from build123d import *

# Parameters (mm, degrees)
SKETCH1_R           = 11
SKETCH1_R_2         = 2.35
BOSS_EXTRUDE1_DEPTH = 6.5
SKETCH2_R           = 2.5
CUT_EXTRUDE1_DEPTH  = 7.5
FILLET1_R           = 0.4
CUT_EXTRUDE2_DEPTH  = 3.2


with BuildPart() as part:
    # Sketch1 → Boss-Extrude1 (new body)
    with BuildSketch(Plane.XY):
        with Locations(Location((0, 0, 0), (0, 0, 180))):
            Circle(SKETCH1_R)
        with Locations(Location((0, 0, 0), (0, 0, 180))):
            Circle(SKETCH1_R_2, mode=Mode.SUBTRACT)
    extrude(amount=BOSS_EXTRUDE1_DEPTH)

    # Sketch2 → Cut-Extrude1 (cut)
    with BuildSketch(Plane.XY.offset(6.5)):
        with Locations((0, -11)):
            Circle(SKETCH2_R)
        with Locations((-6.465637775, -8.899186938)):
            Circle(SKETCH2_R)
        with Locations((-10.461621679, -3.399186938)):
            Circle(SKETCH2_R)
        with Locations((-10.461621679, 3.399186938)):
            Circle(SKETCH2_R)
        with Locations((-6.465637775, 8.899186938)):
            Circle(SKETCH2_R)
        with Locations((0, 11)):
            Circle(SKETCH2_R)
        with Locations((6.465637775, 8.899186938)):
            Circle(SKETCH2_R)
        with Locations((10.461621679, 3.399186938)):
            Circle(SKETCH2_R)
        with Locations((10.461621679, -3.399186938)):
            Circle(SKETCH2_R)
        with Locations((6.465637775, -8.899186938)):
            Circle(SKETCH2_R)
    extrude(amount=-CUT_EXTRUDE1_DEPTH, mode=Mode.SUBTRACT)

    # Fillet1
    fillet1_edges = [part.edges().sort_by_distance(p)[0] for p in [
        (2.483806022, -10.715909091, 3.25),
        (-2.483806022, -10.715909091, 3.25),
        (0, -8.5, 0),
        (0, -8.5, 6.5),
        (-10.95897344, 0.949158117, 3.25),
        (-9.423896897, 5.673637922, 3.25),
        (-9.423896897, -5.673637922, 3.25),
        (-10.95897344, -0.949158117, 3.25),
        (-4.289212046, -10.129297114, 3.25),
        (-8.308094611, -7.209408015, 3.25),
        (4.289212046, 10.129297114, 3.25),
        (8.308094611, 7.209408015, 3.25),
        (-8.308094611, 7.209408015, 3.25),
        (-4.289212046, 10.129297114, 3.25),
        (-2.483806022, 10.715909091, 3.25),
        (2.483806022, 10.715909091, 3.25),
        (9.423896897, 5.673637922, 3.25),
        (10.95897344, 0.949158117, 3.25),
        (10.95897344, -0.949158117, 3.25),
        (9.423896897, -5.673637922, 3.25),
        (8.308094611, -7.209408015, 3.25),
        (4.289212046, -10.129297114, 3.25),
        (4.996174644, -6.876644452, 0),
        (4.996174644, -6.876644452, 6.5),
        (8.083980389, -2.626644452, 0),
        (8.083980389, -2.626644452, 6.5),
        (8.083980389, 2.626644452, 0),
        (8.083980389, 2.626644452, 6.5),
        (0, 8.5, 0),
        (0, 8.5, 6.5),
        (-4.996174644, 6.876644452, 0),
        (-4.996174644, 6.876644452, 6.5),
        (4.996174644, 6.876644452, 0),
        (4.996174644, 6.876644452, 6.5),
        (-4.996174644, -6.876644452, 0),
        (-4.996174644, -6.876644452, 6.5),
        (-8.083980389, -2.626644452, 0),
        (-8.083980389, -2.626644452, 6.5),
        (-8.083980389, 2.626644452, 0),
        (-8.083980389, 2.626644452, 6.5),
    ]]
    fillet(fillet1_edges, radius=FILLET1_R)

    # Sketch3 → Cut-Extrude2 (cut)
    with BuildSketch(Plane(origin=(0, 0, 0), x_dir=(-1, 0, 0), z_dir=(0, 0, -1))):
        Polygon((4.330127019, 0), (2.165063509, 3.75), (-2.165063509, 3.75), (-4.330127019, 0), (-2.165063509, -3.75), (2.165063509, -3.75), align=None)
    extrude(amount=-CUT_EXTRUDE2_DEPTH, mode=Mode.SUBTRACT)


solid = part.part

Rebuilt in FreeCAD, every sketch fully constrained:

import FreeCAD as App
import Part
import Sketcher
from FreeCAD import Vector
Q = App.Units.Quantity


def edges_at(feature, points):
    """Names of the edges that pass closest to the given points."""
    edges = feature.Shape.Edges
    near = lambda p: min(range(len(edges)), key=lambda i: edges[i].distToShape(Part.Vertex(*p))[0])
    return sorted({f"Edge{near(p) + 1}" for p in points})


def add_polygon(sketch, points):
    """Adds a closed chain of lines whose ends are joined by coincident constraints."""
    first, n = sketch.GeometryCount, len(points)
    for a, b in zip(points, points[1:] + points[:1]):
        sketch.addGeometry(Part.LineSegment(App.Vector(*a, 0), App.Vector(*b, 0)), False)
    for i in range(n):
        sketch.addConstraint(Sketcher.Constraint("Coincident", first + i, 2, first + (i + 1) % n, 1))

doc = App.newDocument("Part")
params = doc.addObject("Spreadsheet::Sheet", "Params")
for row, (alias, value) in enumerate([
    ("sketch1_diameter", "22 mm"),
    ("sketch1_diameter2", "4.7 mm"),
    ("pad1_length", "6.5 mm"),
    ("sketch2_diameter", "5 mm"),
    ("pocket1_length", "7.5 mm"),
    ("fillet_radius", "0.4 mm"),
    ("pocket2_length", "3.2 mm"),
], start=1):
    params.set(f"A{row}", alias)
    params.set(f"B{row}", "=" + value)
    params.setAlias(f"B{row}", alias)

body = doc.addObject("PartDesign::Body", "Body")

sketch1 = body.newObject("Sketcher::SketchObject", "Sketch")
sketch1.AttachmentSupport = (doc.getObject("XY_Plane"), [""])
sketch1.MapMode = "FlatFace"
sketch1.addGeometry(Part.Circle(Vector(0, 0, 0), Vector(0, 0, 1), 11), False)
sketch1.addGeometry(Part.Circle(Vector(0, 0, 0), Vector(0, 0, 1), 2.35), False)
sketch1.addConstraint(Sketcher.Constraint("Coincident", 0, 3, -1, 1))
sketch1.addConstraint(Sketcher.Constraint("Coincident", 1, 3, -1, 1))
sketch1.addConstraint(Sketcher.Constraint("Diameter", 0, 22.0))
sketch1.addConstraint(Sketcher.Constraint("Diameter", 1, 4.7))
sketch1.setExpression("Constraints[2]", "Params.sketch1_diameter")
sketch1.setExpression("Constraints[3]", "Params.sketch1_diameter2")
pad1 = body.newObject("PartDesign::Pad", "Pad")
pad1.Profile = sketch1
pad1.setExpression("Length", "Params.pad1_length")

sketch2 = body.newObject("Sketcher::SketchObject", "Sketch001")
sketch2.AttachmentSupport = (doc.getObject("XY_Plane"), [""])
sketch2.MapMode = "FlatFace"
sketch2.AttachmentOffset = App.Placement(Vector(0, 0, 6.5), App.Rotation())
sketch2.addGeometry(Part.Circle(Vector(0, -11, 0), Vector(0, 0, 1), 2.5), False)
sketch2.addGeometry(Part.Circle(Vector(-6.465638, -8.899187, 0), Vector(0, 0, 1), 2.5), False)
sketch2.addGeometry(Part.Circle(Vector(-10.461622, -3.399187, 0), Vector(0, 0, 1), 2.5), False)
sketch2.addGeometry(Part.Circle(Vector(-10.461622, 3.399187, 0), Vector(0, 0, 1), 2.5), False)
sketch2.addGeometry(Part.Circle(Vector(-6.465638, 8.899187, 0), Vector(0, 0, 1), 2.5), False)
sketch2.addGeometry(Part.Circle(Vector(0, 11, 0), Vector(0, 0, 1), 2.5), False)
sketch2.addGeometry(Part.Circle(Vector(6.465638, 8.899187, 0), Vector(0, 0, 1), 2.5), False)
sketch2.addGeometry(Part.Circle(Vector(10.461622, 3.399187, 0), Vector(0, 0, 1), 2.5), False)
sketch2.addGeometry(Part.Circle(Vector(10.461622, -3.399187, 0), Vector(0, 0, 1), 2.5), False)
sketch2.addGeometry(Part.Circle(Vector(6.465638, -8.899187, 0), Vector(0, 0, 1), 2.5), False)
sketch2.addConstraint(Sketcher.Constraint("Equal", 0, 1))
sketch2.addConstraint(Sketcher.Constraint("Equal", 1, 2))
sketch2.addConstraint(Sketcher.Constraint("Equal", 2, 3))
sketch2.addConstraint(Sketcher.Constraint("Equal", 3, 4))
sketch2.addConstraint(Sketcher.Constraint("Equal", 4, 5))
sketch2.addConstraint(Sketcher.Constraint("Equal", 5, 6))
sketch2.addConstraint(Sketcher.Constraint("Equal", 6, 7))
sketch2.addConstraint(Sketcher.Constraint("Equal", 7, 8))
sketch2.addConstraint(Sketcher.Constraint("Equal", 8, 9))
sketch2.addConstraint(Sketcher.Constraint("Symmetric", 0, 3, 5, 3, -1, 1))
sketch2.addConstraint(Sketcher.Constraint("Symmetric", 1, 3, 6, 3, -1, 1))
sketch2.addConstraint(Sketcher.Constraint("Symmetric", 2, 3, 7, 3, -1, 1))
sketch2.addConstraint(Sketcher.Constraint("Symmetric", 3, 3, 8, 3, -1, 1))
sketch2.addConstraint(Sketcher.Constraint("Symmetric", 4, 3, 9, 3, -1, 1))
sketch2.addConstraint(Sketcher.Constraint("Symmetric", 4, 3, 6, 3, -2))
sketch2.addConstraint(Sketcher.Constraint("Symmetric", 3, 3, 7, 3, -2))
sketch2.addConstraint(Sketcher.Constraint("PointOnObject", 0, 3, -2))
sketch2.addConstraint(Sketcher.Constraint("Diameter", 0, 5.0))
sketch2.addConstraint(Sketcher.Constraint("DistanceY", 0, 3, -1, 1, 11.0))
sketch2.addConstraint(Sketcher.Constraint("DistanceY", 1, 3, 2, 3, 5.5))
sketch2.addConstraint(Sketcher.Constraint("DistanceX", 2, 3, -1, 1, 10.461622))
sketch2.addConstraint(Sketcher.Constraint("DistanceX", 3, 3, 6, 3, 16.927259))
sketch2.addConstraint(Sketcher.Constraint("DistanceY", 1, 3, -1, 1, 8.899187))
sketch2.setExpression("Constraints[17]", "Params.sketch2_diameter")
pocket1 = body.newObject("PartDesign::Pocket", "Pocket")
pocket1.Profile = sketch2
pocket1.setExpression("Length", "Params.pocket1_length")
doc.recompute()

fillet = body.newObject("PartDesign::Fillet", "Fillet")
fillet.Base = (pocket1, edges_at(pocket1, [
    (2.484, -10.716, 3.25),
    (-2.484, -10.716, 3.25),
    (0, -8.5, 0),
    (0, -8.5, 6.5),
    (-10.959, 0.949, 3.25),
    (-9.424, 5.674, 3.25),
    (-9.424, -5.674, 3.25),
    (-10.959, -0.949, 3.25),
    (-4.289, -10.129, 3.25),
    (-8.308, -7.209, 3.25),
    (4.289, 10.129, 3.25),
    (8.308, 7.209, 3.25),
    (-8.308, 7.209, 3.25),
    (-4.289, 10.129, 3.25),
    (-2.484, 10.716, 3.25),
    (2.484, 10.716, 3.25),
    (9.424, 5.674, 3.25),
    (10.959, 0.949, 3.25),
    (10.959, -0.949, 3.25),
    (9.424, -5.674, 3.25),
    (8.308, -7.209, 3.25),
    (4.289, -10.129, 3.25),
    (4.996, -6.877, 0),
    (4.996, -6.877, 6.5),
    (8.084, -2.627, 0),
    (8.084, -2.627, 6.5),
    (8.084, 2.627, 0),
    (8.084, 2.627, 6.5),
    (0, 8.5, 0),
    (0, 8.5, 6.5),
    (-4.996, 6.877, 0),
    (-4.996, 6.877, 6.5),
    (4.996, 6.877, 0),
    (4.996, 6.877, 6.5),
    (-4.996, -6.877, 0),
    (-4.996, -6.877, 6.5),
    (-8.084, -2.627, 0),
    (-8.084, -2.627, 6.5),
    (-8.084, 2.627, 0),
    (-8.084, 2.627, 6.5),
]))
fillet.setExpression("Radius", "Params.fillet_radius")

sketch3 = body.newObject("Sketcher::SketchObject", "Sketch002")
sketch3.AttachmentSupport = (doc.getObject("XY_Plane"), [""])
sketch3.MapMode = "FlatFace"
add_polygon(sketch3, [(-4.330127, 0), (-2.165064, 3.75), (2.165064, 3.75), (4.330127, 0), (2.165064, -3.75), (-2.165064, -3.75)])
sketch3.addConstraint(Sketcher.Constraint("Horizontal", 1))
sketch3.addConstraint(Sketcher.Constraint("Horizontal", 4))
sketch3.addConstraint(Sketcher.Constraint("Symmetric", 0, 2, 3, 2, -1, 1))
sketch3.addConstraint(Sketcher.Constraint("Symmetric", 2, 2, 5, 2, -1, 1))
sketch3.addConstraint(Sketcher.Constraint("PointOnObject", 2, 2, -1))
sketch3.addConstraint(Sketcher.Constraint("Parallel", 2, 5))
sketch3.addConstraint(Sketcher.Constraint("Vertical", 1, 2, 3, 2))
sketch3.addConstraint(Sketcher.Constraint("Angle", 0, Q("60 deg")))
sketch3.addConstraint(Sketcher.Constraint("DistanceY", 3, 2, 1, 2, 7.5))
sketch3.addConstraint(Sketcher.Constraint("DistanceX", 1, 1, 1, 2, 4.330127))
pocket2 = body.newObject("PartDesign::Pocket", "Pocket001")
pocket2.Profile = sketch3
pocket2.setExpression("Length", "Params.pocket2_length")
pocket2.Reversed = True

doc.recompute()
